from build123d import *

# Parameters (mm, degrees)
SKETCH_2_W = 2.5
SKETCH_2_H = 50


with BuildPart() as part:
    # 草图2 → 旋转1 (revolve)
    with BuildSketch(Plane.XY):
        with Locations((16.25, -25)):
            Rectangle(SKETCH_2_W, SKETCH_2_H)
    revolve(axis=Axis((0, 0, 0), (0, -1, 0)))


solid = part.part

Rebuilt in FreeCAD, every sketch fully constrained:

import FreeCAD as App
import Part
import Sketcher
from FreeCAD import Vector


def add_polygon(sketch, points):
    """Adds a closed chain of lines whose ends are joined by coincident constraints."""
    first, n = sketch.GeometryCount, len(points)
    for a, b in zip(points, points[1:] + points[:1]):
        sketch.addGeometry(Part.LineSegment(App.Vector(*a, 0), App.Vector(*b, 0)), False)
    for i in range(n):
        sketch.addConstraint(Sketcher.Constraint("Coincident", first + i, 2, first + (i + 1) % n, 1))

doc = App.newDocument("Part")
body = doc.addObject("PartDesign::Body", "Body")

# Sketch on XY plane
sketch1 = body.newObject("Sketcher::SketchObject", "Sketch")
sketch1.AttachmentSupport = (doc.getObject("XY_Plane"), [""])
sketch1.MapMode = "FlatFace"
add_polygon(sketch1, [(15, 0), (15, -50), (17.5, -50), (17.5, 0)])  # lines 0-3
sketch1.addConstraint([
    Sketcher.Constraint("Vertical", 0),
    Sketcher.Constraint("Horizontal", 1),
    Sketcher.Constraint("Vertical", 2),
    Sketcher.Constraint("Horizontal", 3),
    Sketcher.Constraint("PointOnObject", 2, 2, -1),
    Sketcher.Constraint("DistanceY", 0, 2, 0, 1, 50.0),
    Sketcher.Constraint("DistanceX", 1, 1, 1, 2, 2.5),
    Sketcher.Constraint("DistanceX", -1, 1, 0, 2, 15.0),
])
revolution = body.newObject("PartDesign::Revolution", "Revolution")
revolution.Profile = sketch1
revolution.ReferenceAxis = (sketch1, ["V_Axis"])
revolution.Angle = 360

doc.recompute()
